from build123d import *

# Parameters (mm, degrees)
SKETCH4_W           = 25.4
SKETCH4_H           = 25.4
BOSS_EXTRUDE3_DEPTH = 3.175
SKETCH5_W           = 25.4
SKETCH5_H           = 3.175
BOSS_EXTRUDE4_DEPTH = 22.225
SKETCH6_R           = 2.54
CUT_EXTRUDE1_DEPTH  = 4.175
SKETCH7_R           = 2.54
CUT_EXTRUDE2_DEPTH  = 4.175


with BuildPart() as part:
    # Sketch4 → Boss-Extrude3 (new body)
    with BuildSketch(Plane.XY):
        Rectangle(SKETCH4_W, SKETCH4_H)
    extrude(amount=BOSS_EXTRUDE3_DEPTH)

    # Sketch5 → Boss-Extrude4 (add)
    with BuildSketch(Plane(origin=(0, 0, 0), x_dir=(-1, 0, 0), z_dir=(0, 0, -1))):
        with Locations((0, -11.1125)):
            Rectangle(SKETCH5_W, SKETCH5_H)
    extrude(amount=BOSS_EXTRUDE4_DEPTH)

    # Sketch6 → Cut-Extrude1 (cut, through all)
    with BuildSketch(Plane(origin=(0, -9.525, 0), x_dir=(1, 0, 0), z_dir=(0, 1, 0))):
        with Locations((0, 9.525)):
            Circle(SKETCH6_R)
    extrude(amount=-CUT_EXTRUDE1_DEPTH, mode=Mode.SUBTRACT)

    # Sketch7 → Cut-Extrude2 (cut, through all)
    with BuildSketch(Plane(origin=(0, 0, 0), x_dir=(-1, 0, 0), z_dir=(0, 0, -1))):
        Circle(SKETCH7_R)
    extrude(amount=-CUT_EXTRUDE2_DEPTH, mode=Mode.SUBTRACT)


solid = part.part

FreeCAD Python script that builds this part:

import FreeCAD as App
import Part
import Sketcher
Q = App.Units.Quantity

doc = App.newDocument("Part")
body = doc.addObject("PartDesign::Body", "Body")

# Sketch on XY plane
sketch1 = body.newObject("Sketcher::SketchObject", "Sketch")
sketch1.AttachmentSupport = (doc.getObject("XY_Plane"), [""])
sketch1.MapMode = "FlatFace"
sketch1.addGeometry(Part.LineSegment(App.Vector(-13, 13, 0), App.Vector(-13, -13, 0)), False)
sketch1.addGeometry(Part.LineSegment(App.Vector(-13, -13, 0), App.Vector(13, -13, 0)), False)
sketch1.addGeometry(Part.LineSegment(App.Vector(13, -13, 0), App.Vector(13, 13, 0)), False)
sketch1.addGeometry(Part.LineSegment(App.Vector(13, 13, 0), App.Vector(-13, 13, 0)), False)
sketch1.addConstraint(Sketcher.Constraint("Coincident", 0, 2, 1, 1))
sketch1.addConstraint(Sketcher.Constraint("Coincident", 1, 2, 2, 1))
sketch1.addConstraint(Sketcher.Constraint("Coincident", 2, 2, 3, 1))
sketch1.addConstraint(Sketcher.Constraint("Coincident", 3, 2, 0, 1))
sketch1.addConstraint(Sketcher.Constraint("Vertical", 0))
sketch1.addConstraint(Sketcher.Constraint("Horizontal", 1))
sketch1.addConstraint(Sketcher.Constraint("Vertical", 2))
sketch1.addConstraint(Sketcher.Constraint("Horizontal", 3))
sketch1.addConstraint(Sketcher.Constraint("Symmetric", 0, 2, 2, 2, -1, 1))
sketch1.addConstraint(Sketcher.Constraint("Equal", 3, 0))
sketch1.addConstraint(Sketcher.Constraint("DistanceX", 1, 1, 1, 2, Q("1 in")))
pad1 = body.newObject("PartDesign::Pad", "Pad")
pad1.Profile = sketch1
pad1.Length = Q("0.125 in")

# Sketch on XY plane
sketch2 = body.newObject("Sketcher::SketchObject", "Sketch001")
sketch2.AttachmentSupport = (doc.getObject("XY_Plane"), [""])
sketch2.MapMode = "FlatFace"
sketch2.addGeometry(Part.LineSegment(App.Vector(12.7, -9.5, 0), App.Vector(12.7, -12.7, 0)), False)
sketch2.addGeometry(Part.LineSegment(App.Vector(12.7, -12.7, 0), App.Vector(-12.7, -12.7, 0)), False)
sketch2.addGeometry(Part.LineSegment(App.Vector(-12.7, -12.7, 0), App.Vector(-12.7, -9.5, 0)), False)
sketch2.addGeometry(Part.LineSegment(App.Vector(-12.7, -9.5, 0), App.Vector(12.7, -9.5, 0)), False)
sketch2.addConstraint(Sketcher.Constraint("Coincident", 0, 2, 1, 1))
sketch2.addConstraint(Sketcher.Constraint("Coincident", 1, 2, 2, 1))
sketch2.addConstraint(Sketcher.Constraint("Coincident", 2, 2, 3, 1))
sketch2.addConstraint(Sketcher.Constraint("Coincident", 3, 2, 0, 1))
sketch2.addConstraint(Sketcher.Constraint("Vertical", 0))
sketch2.addConstraint(Sketcher.Constraint("Horizontal", 1))
sketch2.addConstraint(Sketcher.Constraint("Vertical", 2))
sketch2.addConstraint(Sketcher.Constraint("Horizontal", 3))
sketch2.addConstraint(Sketcher.Constraint("DistanceX", 1, 2, 1, 1, Q("1 in")))
sketch2.addConstraint(Sketcher.Constraint("DistanceX", -1, 1, 0, 2, Q("0.5 in")))
sketch2.addConstraint(Sketcher.Constraint("DistanceY", 0, 2, -1, 1, Q("0.5 in")))
sketch2.addConstraint(Sketcher.Constraint("DistanceY", 0, 2, 0, 1, Q("0.125 in")))
pad2 = body.newObject("PartDesign::Pad", "Pad001")
pad2.Profile = sketch2
pad2.Length = Q("0.875 in")
pad2.Reversed = True

# Sketch on XZ plane
sketch3 = body.newObject("Sketcher::SketchObject", "Sketch002")
sketch3.AttachmentSupport = (doc.getObject("XZ_Plane"), [""])
sketch3.MapMode = "FlatFace"
sketch3.AttachmentOffset = App.Placement(App.Vector(0, 0, 0.375 * 25.4), App.Rotation())
sketch3.addGeometry(Part.Circle(App.Vector(0, -9.5, 0), App.Vector(0, 0, 1), 2.5), False)
sketch3.addConstraint(Sketcher.Constraint("PointOnObject", 0, 3, -2))
sketch3.addConstraint(Sketcher.Constraint("Diameter", 0, Q("0.2 in")))
sketch3.addConstraint(Sketcher.Constraint("DistanceY", 0, 3, -1, 1, Q("0.375 in")))
pocket1 = body.newObject("PartDesign::Pocket", "Pocket")
pocket1.Profile = sketch3
pocket1.Type = "ThroughAll"
pocket1.Reversed = True

# Sketch on XY plane
sketch4 = body.newObject("Sketcher::SketchObject", "Sketch003")
sketch4.AttachmentSupport = (doc.getObject("XY_Plane"), [""])
sketch4.MapMode = "FlatFace"
sketch4.addGeometry(Part.Circle(App.Vector(0, 0, 0), App.Vector(0, 0, 1), 2.5), False)
sketch4.addConstraint(Sketcher.Constraint("Coincident", 0, 3, -1, 1))
sketch4.addConstraint(Sketcher.Constraint("Diameter", 0, Q("0.2 in")))
pocket2 = body.newObject("PartDesign::Pocket", "Pocket001")
pocket2.Profile = sketch4
pocket2.Type = "ThroughAll"
pocket2.Reversed = True

doc.recompute()
